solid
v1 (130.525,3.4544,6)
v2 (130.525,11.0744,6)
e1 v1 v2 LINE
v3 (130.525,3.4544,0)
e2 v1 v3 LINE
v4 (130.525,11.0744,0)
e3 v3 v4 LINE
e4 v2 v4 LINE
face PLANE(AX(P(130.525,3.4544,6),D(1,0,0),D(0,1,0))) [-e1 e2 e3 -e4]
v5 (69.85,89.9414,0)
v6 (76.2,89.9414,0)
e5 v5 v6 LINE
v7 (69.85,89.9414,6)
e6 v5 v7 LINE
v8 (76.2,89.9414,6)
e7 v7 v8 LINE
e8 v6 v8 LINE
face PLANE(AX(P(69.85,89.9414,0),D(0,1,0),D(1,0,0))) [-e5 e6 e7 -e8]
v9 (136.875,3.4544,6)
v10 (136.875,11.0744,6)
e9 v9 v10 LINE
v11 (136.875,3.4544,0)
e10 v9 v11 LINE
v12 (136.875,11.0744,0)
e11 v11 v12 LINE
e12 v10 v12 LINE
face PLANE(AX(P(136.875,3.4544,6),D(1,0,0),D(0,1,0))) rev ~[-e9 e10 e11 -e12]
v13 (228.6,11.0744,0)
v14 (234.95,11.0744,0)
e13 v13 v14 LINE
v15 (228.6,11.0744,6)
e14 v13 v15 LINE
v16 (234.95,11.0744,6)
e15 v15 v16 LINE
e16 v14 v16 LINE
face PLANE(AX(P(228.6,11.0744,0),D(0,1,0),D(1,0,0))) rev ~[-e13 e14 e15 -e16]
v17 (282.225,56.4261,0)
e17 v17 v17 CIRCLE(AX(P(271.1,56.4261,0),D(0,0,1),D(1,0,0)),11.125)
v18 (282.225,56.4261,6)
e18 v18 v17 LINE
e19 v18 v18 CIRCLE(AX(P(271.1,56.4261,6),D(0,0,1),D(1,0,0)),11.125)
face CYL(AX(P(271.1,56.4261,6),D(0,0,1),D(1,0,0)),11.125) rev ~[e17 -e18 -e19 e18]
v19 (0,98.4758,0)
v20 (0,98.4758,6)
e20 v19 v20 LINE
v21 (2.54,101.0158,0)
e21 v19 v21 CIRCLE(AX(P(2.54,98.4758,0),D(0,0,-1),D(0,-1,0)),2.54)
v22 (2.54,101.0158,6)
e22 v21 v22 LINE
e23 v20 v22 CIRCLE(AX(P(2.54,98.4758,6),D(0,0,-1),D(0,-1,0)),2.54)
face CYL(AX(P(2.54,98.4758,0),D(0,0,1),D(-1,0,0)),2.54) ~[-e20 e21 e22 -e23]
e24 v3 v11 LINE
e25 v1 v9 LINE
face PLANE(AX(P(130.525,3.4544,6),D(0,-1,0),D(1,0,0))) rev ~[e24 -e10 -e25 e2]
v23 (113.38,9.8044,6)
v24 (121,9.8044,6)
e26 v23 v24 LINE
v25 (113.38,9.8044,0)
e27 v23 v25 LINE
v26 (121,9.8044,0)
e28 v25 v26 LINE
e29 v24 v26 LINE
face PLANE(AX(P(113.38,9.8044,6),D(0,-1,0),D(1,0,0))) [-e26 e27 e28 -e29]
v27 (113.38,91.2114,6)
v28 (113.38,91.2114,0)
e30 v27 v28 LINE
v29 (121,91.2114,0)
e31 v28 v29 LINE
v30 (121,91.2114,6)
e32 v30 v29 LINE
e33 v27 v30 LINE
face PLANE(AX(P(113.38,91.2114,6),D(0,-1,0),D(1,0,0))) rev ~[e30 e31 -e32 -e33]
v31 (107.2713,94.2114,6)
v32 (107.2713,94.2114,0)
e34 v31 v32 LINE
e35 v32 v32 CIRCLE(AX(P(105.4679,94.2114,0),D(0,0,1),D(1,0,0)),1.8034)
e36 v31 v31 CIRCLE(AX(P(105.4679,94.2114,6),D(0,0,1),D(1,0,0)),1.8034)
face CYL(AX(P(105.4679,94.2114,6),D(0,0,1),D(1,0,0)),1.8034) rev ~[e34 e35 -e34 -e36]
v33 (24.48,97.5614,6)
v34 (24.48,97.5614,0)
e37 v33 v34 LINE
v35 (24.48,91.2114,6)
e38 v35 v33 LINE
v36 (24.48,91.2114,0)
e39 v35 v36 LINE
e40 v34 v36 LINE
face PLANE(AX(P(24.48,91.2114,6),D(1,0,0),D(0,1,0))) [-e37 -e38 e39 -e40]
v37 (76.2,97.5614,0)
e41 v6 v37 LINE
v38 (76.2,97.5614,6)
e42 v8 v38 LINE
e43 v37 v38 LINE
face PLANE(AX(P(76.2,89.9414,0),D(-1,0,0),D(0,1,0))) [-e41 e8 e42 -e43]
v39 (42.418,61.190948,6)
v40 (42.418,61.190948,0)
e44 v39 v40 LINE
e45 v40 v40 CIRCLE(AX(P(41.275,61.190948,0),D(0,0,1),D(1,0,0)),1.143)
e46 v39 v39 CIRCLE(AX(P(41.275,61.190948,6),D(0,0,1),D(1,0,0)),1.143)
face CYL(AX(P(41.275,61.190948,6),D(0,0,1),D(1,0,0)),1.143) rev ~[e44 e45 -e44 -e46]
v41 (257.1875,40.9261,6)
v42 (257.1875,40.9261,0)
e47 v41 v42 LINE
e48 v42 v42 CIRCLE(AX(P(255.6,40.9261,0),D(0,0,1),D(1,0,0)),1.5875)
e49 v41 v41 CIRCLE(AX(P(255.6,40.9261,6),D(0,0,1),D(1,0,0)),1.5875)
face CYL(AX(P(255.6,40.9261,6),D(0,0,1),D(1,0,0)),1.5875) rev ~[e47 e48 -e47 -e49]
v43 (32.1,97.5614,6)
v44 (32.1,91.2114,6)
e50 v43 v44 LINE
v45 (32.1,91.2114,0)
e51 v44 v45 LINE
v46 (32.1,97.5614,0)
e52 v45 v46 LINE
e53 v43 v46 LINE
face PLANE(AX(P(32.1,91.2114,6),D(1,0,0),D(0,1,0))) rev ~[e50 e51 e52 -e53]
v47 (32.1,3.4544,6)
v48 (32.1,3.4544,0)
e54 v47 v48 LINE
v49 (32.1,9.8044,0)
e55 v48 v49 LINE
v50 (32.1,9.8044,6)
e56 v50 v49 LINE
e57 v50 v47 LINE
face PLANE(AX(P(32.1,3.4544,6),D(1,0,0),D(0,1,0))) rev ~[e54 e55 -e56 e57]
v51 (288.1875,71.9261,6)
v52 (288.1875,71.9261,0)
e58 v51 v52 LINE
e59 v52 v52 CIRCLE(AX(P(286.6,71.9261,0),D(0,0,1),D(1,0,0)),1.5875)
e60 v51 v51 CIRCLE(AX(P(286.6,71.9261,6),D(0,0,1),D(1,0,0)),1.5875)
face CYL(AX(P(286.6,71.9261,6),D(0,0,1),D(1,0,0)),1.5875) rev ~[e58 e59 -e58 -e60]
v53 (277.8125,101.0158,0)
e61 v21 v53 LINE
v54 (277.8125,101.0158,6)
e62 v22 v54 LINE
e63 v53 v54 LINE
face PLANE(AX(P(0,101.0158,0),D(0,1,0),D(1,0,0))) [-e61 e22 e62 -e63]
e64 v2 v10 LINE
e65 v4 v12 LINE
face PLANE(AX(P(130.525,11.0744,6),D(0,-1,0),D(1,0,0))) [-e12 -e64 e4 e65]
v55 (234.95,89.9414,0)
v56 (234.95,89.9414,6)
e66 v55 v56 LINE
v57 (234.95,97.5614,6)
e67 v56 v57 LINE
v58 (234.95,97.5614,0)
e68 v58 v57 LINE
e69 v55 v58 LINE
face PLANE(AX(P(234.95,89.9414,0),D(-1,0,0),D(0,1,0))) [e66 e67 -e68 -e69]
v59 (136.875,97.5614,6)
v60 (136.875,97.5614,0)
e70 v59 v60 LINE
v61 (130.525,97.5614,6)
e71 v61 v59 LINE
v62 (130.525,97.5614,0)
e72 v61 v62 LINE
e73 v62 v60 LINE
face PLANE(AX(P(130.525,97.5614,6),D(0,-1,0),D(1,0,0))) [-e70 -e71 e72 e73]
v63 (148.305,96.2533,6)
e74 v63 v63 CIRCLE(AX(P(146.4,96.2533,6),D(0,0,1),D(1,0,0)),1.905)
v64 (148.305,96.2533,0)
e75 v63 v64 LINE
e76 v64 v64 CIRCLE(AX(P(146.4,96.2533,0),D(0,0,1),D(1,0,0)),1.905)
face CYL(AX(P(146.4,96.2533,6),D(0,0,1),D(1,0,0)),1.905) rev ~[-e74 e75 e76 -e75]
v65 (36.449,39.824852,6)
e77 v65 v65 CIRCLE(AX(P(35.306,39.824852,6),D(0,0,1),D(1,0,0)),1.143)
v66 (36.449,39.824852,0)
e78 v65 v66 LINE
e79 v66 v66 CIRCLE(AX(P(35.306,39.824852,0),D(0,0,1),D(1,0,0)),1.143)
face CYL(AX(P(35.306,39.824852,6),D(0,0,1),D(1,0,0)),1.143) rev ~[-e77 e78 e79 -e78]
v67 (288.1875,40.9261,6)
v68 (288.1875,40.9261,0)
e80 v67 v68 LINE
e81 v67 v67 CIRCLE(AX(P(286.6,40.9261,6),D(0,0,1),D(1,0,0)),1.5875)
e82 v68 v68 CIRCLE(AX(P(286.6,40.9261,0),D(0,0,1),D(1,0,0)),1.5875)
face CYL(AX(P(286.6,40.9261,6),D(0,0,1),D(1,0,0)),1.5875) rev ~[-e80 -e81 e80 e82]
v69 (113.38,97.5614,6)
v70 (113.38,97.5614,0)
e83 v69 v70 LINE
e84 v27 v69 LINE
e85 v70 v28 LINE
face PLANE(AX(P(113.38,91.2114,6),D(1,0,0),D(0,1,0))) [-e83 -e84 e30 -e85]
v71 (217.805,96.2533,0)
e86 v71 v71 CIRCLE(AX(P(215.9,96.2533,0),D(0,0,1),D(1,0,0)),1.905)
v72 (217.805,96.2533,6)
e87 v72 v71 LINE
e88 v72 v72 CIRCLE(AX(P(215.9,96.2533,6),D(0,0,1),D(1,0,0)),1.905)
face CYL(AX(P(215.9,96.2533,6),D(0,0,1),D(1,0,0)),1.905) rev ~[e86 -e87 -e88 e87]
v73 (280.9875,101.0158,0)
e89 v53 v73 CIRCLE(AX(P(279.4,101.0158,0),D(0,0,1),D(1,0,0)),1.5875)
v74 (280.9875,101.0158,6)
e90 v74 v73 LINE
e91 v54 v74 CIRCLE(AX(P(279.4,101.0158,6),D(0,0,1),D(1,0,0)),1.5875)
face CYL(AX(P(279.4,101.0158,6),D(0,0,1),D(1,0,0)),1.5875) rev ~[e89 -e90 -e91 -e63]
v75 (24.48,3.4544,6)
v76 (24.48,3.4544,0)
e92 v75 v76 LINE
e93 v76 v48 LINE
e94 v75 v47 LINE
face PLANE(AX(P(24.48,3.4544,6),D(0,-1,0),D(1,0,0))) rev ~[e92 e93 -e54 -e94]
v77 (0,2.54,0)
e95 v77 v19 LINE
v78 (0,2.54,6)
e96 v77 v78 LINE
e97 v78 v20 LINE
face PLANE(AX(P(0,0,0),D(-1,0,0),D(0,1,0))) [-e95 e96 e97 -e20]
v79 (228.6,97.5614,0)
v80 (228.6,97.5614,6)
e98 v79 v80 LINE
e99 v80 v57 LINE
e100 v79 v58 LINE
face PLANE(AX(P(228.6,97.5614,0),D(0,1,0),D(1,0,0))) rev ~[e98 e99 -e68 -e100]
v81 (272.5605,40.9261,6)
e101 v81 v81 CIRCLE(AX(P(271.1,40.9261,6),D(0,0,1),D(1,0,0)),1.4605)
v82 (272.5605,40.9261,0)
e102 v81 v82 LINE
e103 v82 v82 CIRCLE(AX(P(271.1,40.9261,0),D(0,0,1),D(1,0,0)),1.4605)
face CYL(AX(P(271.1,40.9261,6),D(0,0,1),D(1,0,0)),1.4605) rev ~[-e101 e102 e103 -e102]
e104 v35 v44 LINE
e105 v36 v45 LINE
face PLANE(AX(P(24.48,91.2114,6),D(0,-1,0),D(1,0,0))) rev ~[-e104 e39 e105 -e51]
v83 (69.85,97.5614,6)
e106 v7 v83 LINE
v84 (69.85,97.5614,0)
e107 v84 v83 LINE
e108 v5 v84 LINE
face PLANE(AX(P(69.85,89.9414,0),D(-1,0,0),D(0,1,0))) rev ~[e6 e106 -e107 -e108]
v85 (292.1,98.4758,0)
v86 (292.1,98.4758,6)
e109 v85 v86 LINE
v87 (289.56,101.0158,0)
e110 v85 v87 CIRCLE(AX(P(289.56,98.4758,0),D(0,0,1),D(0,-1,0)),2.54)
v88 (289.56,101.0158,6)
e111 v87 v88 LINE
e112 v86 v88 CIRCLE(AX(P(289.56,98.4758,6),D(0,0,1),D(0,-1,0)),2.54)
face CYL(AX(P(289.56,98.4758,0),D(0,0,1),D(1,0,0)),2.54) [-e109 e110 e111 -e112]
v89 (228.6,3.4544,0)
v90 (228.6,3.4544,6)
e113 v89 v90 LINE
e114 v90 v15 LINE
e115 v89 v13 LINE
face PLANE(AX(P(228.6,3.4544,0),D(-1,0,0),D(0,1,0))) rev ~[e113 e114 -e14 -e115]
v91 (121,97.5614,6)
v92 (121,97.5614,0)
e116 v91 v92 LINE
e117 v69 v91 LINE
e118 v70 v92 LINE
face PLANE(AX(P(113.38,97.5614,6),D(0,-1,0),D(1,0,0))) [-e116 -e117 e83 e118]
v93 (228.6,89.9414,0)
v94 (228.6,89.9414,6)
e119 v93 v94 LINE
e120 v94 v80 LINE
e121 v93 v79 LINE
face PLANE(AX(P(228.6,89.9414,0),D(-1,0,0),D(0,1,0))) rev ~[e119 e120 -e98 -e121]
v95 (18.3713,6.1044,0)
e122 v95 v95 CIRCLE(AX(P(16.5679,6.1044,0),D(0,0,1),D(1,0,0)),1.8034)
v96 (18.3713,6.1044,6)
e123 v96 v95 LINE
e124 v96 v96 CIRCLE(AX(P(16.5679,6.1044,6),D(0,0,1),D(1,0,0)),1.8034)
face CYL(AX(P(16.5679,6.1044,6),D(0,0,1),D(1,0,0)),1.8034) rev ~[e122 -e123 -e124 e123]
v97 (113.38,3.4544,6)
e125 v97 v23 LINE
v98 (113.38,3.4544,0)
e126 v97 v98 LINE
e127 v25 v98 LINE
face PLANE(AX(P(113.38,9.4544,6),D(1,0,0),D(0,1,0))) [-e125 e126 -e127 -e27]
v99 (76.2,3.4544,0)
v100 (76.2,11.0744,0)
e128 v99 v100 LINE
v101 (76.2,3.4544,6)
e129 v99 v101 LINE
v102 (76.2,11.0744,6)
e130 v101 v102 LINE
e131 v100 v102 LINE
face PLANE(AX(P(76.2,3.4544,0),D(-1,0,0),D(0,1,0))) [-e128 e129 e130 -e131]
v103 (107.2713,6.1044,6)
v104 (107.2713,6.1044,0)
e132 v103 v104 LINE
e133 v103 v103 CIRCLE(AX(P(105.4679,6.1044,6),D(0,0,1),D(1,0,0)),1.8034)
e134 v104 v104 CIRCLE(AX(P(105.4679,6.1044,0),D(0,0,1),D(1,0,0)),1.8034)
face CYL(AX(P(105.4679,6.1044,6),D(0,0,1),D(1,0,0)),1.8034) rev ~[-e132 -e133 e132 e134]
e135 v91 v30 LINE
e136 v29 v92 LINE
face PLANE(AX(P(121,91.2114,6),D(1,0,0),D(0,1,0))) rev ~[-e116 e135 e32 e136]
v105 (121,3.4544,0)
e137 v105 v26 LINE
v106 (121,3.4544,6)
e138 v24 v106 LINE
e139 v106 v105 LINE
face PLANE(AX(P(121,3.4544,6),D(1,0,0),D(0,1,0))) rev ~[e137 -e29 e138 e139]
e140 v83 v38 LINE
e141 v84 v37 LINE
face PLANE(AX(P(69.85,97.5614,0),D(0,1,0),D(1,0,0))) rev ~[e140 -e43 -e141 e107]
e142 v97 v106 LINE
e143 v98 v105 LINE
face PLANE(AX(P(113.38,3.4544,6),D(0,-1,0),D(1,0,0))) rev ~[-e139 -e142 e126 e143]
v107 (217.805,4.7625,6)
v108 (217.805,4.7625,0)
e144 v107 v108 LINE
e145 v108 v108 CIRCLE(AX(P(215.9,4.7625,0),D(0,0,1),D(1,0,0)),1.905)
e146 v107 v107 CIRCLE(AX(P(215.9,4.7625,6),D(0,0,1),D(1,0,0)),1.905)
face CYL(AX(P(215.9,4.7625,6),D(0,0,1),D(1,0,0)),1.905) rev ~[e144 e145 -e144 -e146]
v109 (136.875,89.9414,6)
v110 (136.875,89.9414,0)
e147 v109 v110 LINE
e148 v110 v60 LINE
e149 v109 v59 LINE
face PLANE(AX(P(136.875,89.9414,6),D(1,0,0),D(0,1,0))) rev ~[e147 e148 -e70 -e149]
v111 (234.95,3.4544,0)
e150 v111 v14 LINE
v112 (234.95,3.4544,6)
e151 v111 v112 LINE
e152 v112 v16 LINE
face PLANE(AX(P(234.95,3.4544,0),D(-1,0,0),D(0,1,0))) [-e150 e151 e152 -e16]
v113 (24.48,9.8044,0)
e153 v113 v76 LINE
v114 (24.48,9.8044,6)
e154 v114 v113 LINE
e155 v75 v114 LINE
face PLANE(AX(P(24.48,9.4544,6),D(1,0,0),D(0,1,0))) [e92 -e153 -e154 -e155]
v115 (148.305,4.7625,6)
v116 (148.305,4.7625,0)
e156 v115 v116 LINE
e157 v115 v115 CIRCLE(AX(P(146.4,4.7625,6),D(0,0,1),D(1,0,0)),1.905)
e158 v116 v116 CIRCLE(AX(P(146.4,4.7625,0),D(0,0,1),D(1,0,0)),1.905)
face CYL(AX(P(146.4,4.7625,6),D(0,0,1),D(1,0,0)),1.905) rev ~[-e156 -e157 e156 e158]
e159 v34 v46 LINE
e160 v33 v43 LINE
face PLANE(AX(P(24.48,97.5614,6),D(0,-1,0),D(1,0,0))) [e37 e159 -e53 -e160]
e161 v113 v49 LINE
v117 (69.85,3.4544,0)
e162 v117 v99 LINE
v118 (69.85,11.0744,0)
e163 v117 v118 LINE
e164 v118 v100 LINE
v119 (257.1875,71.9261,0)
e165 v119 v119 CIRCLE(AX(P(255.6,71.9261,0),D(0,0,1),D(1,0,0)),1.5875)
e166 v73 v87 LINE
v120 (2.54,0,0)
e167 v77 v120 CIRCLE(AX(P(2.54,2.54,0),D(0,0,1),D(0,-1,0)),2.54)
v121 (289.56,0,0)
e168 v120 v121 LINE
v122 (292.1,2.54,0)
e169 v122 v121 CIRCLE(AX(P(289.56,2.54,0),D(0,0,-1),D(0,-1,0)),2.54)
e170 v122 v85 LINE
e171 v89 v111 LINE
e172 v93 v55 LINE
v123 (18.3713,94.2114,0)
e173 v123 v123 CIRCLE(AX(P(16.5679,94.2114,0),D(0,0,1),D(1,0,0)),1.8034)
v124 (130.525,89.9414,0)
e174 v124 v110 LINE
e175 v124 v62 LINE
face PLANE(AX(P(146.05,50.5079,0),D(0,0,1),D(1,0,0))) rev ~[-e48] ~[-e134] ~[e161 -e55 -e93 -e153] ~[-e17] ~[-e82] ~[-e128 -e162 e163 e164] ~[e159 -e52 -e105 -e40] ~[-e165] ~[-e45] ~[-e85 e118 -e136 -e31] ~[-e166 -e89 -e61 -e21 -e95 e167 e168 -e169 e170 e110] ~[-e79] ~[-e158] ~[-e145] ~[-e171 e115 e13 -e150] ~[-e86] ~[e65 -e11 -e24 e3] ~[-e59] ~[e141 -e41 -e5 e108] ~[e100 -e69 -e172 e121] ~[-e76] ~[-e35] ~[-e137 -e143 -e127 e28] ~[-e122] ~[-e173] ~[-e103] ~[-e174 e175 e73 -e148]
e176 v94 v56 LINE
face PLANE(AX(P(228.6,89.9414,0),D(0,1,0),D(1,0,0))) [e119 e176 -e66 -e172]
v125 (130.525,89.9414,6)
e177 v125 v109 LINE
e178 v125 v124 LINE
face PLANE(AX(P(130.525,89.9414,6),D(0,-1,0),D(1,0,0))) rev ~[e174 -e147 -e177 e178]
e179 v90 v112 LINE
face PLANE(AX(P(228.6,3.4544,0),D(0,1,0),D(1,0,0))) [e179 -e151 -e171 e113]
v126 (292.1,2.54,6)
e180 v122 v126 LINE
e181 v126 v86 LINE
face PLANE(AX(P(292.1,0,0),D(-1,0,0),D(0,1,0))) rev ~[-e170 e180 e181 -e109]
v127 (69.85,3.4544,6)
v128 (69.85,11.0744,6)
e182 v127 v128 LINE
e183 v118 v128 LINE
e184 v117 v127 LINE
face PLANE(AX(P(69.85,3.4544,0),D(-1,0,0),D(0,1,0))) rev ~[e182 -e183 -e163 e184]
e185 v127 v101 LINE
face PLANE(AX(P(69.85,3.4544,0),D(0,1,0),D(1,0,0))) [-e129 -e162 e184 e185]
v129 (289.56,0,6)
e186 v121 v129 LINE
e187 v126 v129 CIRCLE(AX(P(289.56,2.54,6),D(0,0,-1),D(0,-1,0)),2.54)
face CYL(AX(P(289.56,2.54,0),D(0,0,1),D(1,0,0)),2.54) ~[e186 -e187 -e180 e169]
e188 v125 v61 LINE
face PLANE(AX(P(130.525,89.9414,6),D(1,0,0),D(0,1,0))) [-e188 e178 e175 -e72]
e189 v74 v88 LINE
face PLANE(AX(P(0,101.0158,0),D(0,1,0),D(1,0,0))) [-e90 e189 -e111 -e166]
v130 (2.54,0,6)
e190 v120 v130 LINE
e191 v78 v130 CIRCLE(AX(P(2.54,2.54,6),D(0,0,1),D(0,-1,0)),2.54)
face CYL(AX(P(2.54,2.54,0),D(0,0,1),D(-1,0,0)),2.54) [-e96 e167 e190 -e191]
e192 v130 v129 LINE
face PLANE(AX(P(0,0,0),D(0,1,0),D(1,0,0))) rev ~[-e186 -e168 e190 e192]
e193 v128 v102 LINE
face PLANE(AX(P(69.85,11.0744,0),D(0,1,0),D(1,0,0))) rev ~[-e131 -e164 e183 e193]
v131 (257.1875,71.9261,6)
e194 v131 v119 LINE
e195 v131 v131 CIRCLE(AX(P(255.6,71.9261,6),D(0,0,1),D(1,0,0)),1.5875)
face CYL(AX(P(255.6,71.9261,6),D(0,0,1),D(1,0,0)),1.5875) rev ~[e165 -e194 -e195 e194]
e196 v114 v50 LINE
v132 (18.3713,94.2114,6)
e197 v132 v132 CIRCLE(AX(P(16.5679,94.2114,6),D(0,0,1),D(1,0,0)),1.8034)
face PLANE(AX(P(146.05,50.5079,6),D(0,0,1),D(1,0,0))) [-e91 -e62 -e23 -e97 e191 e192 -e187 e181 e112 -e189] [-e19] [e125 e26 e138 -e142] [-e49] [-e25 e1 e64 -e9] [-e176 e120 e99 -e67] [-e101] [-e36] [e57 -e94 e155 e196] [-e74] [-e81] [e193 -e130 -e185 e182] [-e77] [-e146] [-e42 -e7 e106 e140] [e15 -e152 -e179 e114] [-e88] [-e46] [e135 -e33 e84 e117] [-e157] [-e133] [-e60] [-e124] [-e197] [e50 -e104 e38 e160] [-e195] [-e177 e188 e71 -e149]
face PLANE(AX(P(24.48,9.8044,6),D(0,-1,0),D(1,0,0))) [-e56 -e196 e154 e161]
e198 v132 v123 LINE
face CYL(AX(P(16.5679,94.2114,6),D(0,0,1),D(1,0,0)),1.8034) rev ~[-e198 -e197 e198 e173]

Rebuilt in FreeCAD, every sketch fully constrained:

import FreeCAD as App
import Part
import Sketcher
from FreeCAD import Vector
Q = App.Units.Quantity


def edges_at(feature, points):
    """Names of the edges that pass closest to the given points."""
    edges = feature.Shape.Edges
    near = lambda p: min(range(len(edges)), key=lambda i: edges[i].distToShape(Part.Vertex(*p))[0])
    return sorted({f"Edge{near(p) + 1}" for p in points})

doc = App.newDocument("Part")
params = doc.addObject("Spreadsheet::Sheet", "Params")
for row, (alias, value) in enumerate([
    ("sketch1_width", "11.5 in"),
    ("sketch1_height", "0.3 in"),
    ("sketch1_width2", "0.25 in"),
    ("sketch1_height2", "3.977 in"),
    ("pad1_length", "6 mm"),
    ("sketch2_diameter", "0.125 in"),
    ("sketch2_diameter2", "0.115 in"),
    ("sketch3_width", "0.3 in"),
    ("sketch4_width", "0.3 in"),
    ("pocket3_length", "6 mm"),
    ("fillet_radius", "0.1 in"),
    ("sketch5_diameter", "0.09 in"),
    ("sketch6_diameter", "0.15 in"),
    ("sketch6_height", "0.3 in"),
    ("sketch6_width", "0.25 in"),
    ("sketch7_diameter", "0.142 in"),
    ("sketch8_diameter", "0.125 in"),
], start=1):
    params.set(f"A{row}", alias)
    params.set(f"B{row}", "=" + value)
    params.setAlias(f"B{row}", alias)

body = doc.addObject("PartDesign::Body", "Body")

sketch1 = doc.addObject("Sketcher::SketchObject", "Sketch")
body.addObject(sketch1)
sketch1.AttachmentSupport = (doc.XY_Plane, [""])
sketch1.MapMode = "FlatFace"
sketch1.addGeometry([
    Part.LineSegment(Vector(0, 101, 0), Vector(0, 0, 0)),
    Part.LineSegment(Vector(0, 0, 0), Vector(292, 0, 0)),
    Part.LineSegment(Vector(292, 0, 0), Vector(292, 101, 0)),
    Part.LineSegment(Vector(292, 101, 0), Vector(0, 101, 0)),
    Part.LineSegment(Vector(76, 3, 0), Vector(70, 3, 0)),
    Part.LineSegment(Vector(70, 3, 0), Vector(70, 11, 0)),
    Part.LineSegment(Vector(70, 11, 0), Vector(76, 11, 0)),
    Part.LineSegment(Vector(76, 11, 0), Vector(76, 3, 0)),
    Part.LineSegment(Vector(235, 3, 0), Vector(229, 3, 0)),
    Part.LineSegment(Vector(229, 3, 0), Vector(229, 11, 0)),
    Part.LineSegment(Vector(229, 11, 0), Vector(235, 11, 0)),
    Part.LineSegment(Vector(235, 11, 0), Vector(235, 3, 0)),
    Part.LineSegment(Vector(76, 90, 0), Vector(70, 90, 0)),
    Part.LineSegment(Vector(70, 90, 0), Vector(70, 98, 0)),
    Part.LineSegment(Vector(70, 98, 0), Vector(76, 98, 0)),
    Part.LineSegment(Vector(76, 98, 0), Vector(76, 90, 0)),
    Part.LineSegment(Vector(235, 90, 0), Vector(229, 90, 0)),
    Part.LineSegment(Vector(229, 90, 0), Vector(229, 98, 0)),
    Part.LineSegment(Vector(229, 98, 0), Vector(235, 98, 0)),
    Part.LineSegment(Vector(235, 98, 0), Vector(235, 90, 0)),
], False)
sketch1.addConstraint([
    Sketcher.Constraint("Coincident", 0, 2, 1, 1),
    Sketcher.Constraint("Coincident", 1, 2, 2, 1),
    Sketcher.Constraint("Coincident", 2, 2, 3, 1),
    Sketcher.Constraint("Coincident", 3, 2, 0, 1),
    Sketcher.Constraint("Coincident", 4, 2, 5, 1),
    Sketcher.Constraint("Coincident", 5, 2, 6, 1),
    Sketcher.Constraint("Coincident", 6, 2, 7, 1),
    Sketcher.Constraint("Coincident", 7, 2, 4, 1),
    Sketcher.Constraint("Coincident", 8, 2, 9, 1),
    Sketcher.Constraint("Coincident", 9, 2, 10, 1),
    Sketcher.Constraint("Coincident", 10, 2, 11, 1),
    Sketcher.Constraint("Coincident", 11, 2, 8, 1),
    Sketcher.Constraint("Coincident", 12, 2, 13, 1),
    Sketcher.Constraint("Coincident", 13, 2, 14, 1),
    Sketcher.Constraint("Coincident", 14, 2, 15, 1),
    Sketcher.Constraint("Coincident", 15, 2, 12, 1),
    Sketcher.Constraint("Coincident", 16, 2, 17, 1),
    Sketcher.Constraint("Coincident", 17, 2, 18, 1),
    Sketcher.Constraint("Coincident", 18, 2, 19, 1),
    Sketcher.Constraint("Coincident", 19, 2, 16, 1),
    Sketcher.Constraint("Vertical", 0),
    Sketcher.Constraint("Horizontal", 1),
    Sketcher.Constraint("Vertical", 2),
    Sketcher.Constraint("Horizontal", 3),
    Sketcher.Constraint("Horizontal", 4),
    Sketcher.Constraint("Vertical", 5),
    Sketcher.Constraint("Horizontal", 6),
    Sketcher.Constraint("Vertical", 7),
    Sketcher.Constraint("Horizontal", 8),
    Sketcher.Constraint("Vertical", 9),
    Sketcher.Constraint("Horizontal", 10),
    Sketcher.Constraint("Vertical", 11),
    Sketcher.Constraint("Horizontal", 12),
    Sketcher.Constraint("Vertical", 13),
    Sketcher.Constraint("Horizontal", 14),
    Sketcher.Constraint("Vertical", 15),
    Sketcher.Constraint("Horizontal", 16),
    Sketcher.Constraint("Vertical", 17),
    Sketcher.Constraint("Horizontal", 18),
    Sketcher.Constraint("Vertical", 19),
    Sketcher.Constraint("Coincident", 0, 2, -1, 1),
    Sketcher.Constraint("Horizontal", 7, 2, 8, 2),
    Sketcher.Constraint("Horizontal", 6, 2, 9, 2),
    Sketcher.Constraint("Horizontal", 15, 2, 16, 2),
    Sketcher.Constraint("Horizontal", 14, 2, 17, 2),
    Sketcher.Constraint("Vertical", 5, 2, 12, 2),
    Sketcher.Constraint("Vertical", 7, 2, 14, 2),
    Sketcher.Constraint("Vertical", 9, 2, 16, 2),
    Sketcher.Constraint("Vertical", 11, 2, 18, 2),
    Sketcher.Constraint("Equal", 6, 8),
    Sketcher.Constraint("Equal", 11, 13),
    Sketcher.Constraint("DistanceX", 1, 1, 1, 2, Q("11.5 in")),
    Sketcher.Constraint("DistanceY", 5, 1, 5, 2, Q("0.3 in")),
    Sketcher.Constraint("DistanceX", -1, 1, 6, 2, Q("3 in")),
    Sketcher.Constraint("DistanceX", -1, 1, 8, 2, Q("9 in")),
    Sketcher.Constraint("DistanceX", 4, 2, 4, 1, Q("0.25 in")),
    Sketcher.Constraint("DistanceY", 0, 2, 0, 1, Q("3.977 in")),
    Sketcher.Constraint("DistanceY", -1, 1, 4, 2, Q("0.136 in")),
    Sketcher.Constraint("DistanceY", -1, 1, 12, 2, Q("3.541 in")),
])
sketch1.setExpression("Constraints[51]", "Params.sketch1_width")
sketch1.setExpression("Constraints[52]", "Params.sketch1_height")
sketch1.setExpression("Constraints[55]", "Params.sketch1_width2")
sketch1.setExpression("Constraints[56]", "Params.sketch1_height2")
pad1 = doc.addObject("PartDesign::Pad", "Pad")
body.addObject(pad1)
pad1.Profile = sketch1
pad1.setExpression("Length", "Params.pad1_length")

sketch2 = doc.addObject("Sketcher::SketchObject", "Sketch001")
body.addObject(sketch2)
sketch2.AttachmentSupport = (doc.XY_Plane, [""])
sketch2.MapMode = "FlatFace"
sketch2.AttachmentOffset = App.Placement(Vector(0, 0, 6), App.Rotation())
sketch2.addGeometry([
    Part.Circle(Vector(271.1, 56.4, 0), Vector(0, 0, 1), 11.1),
    Part.Circle(Vector(255.6, 71.9, 0), Vector(0, 0, 1), 1.6),
    Part.Circle(Vector(255.6, 40.9, 0), Vector(0, 0, 1), 1.6),
    Part.Circle(Vector(286.6, 40.9, 0), Vector(0, 0, 1), 1.6),
    Part.Circle(Vector(286.6, 71.9, 0), Vector(0, 0, 1), 1.6),
    Part.Circle(Vector(271.1, 40.9, 0), Vector(0, 0, 1), 1.5),
], False)
sketch2.addConstraint([
    Sketcher.Constraint("Equal", 1, 2),
    Sketcher.Constraint("Equal", 2, 3),
    Sketcher.Constraint("Equal", 3, 4),
    Sketcher.Constraint("Horizontal", 2, 3, 3, 3),
    Sketcher.Constraint("Horizontal", 1, 3, 4, 3),
    Sketcher.Constraint("Horizontal", 3, 3, 5, 3),
    Sketcher.Constraint("Vertical", 1, 3, 2, 3),
    Sketcher.Constraint("Vertical", 3, 3, 4, 3),
    Sketcher.Constraint("Vertical", 0, 3, 5, 3),
    Sketcher.Constraint("Diameter", 1, Q("0.125 in")),
    Sketcher.Constraint("Diameter", 5, Q("0.115 in")),
    Sketcher.Constraint("Diameter", 0, Q("22.25 mm")),
    Sketcher.Constraint("DistanceY", -1, 1, 0, 3, Q("2.2215 in")),
    Sketcher.Constraint("DistanceX", -1, 1, 0, 3, Q("271.1 mm")),
    Sketcher.Constraint("DistanceX", -1, 1, 1, 3, Q("255.6 mm")),
    Sketcher.Constraint("DistanceY", -1, 1, 1, 3, Q("71.9261 mm")),
    Sketcher.Constraint("DistanceY", -1, 1, 2, 3, Q("40.9261 mm")),
    Sketcher.Constraint("DistanceX", -1, 1, 3, 3, Q("286.6 mm")),
])
sketch2.setExpression("Constraints[9]", "Params.sketch2_diameter")
sketch2.setExpression("Constraints[10]", "Params.sketch2_diameter2")
pocket1 = doc.addObject("PartDesign::Pocket", "Pocket")
body.addObject(pocket1)
pocket1.Profile = sketch2
pocket1.Type = "ThroughAll"

sketch3 = doc.addObject("Sketcher::SketchObject", "Sketch002")
body.addObject(sketch3)
sketch3.AttachmentSupport = (doc.XY_Plane, [""])
sketch3.MapMode = "FlatFace"
sketch3.AttachmentOffset = App.Placement(Vector(0, 0, 6), App.Rotation())
sketch3.addGeometry([
    Part.LineSegment(Vector(113, 98, 0), Vector(113, 92, 0)),
    Part.LineSegment(Vector(113, 92, 0), Vector(121, 92, 0)),
    Part.LineSegment(Vector(121, 92, 0), Vector(121, 98, 0)),
    Part.LineSegment(Vector(121, 98, 0), Vector(113, 98, 0)),
    Part.LineSegment(Vector(113, 9, 0), Vector(113, 3, 0)),
    Part.LineSegment(Vector(113, 3, 0), Vector(121, 3, 0)),
    Part.LineSegment(Vector(121, 3, 0), Vector(121, 9, 0)),
    Part.LineSegment(Vector(121, 9, 0), Vector(113, 9, 0)),
    Part.LineSegment(Vector(24, 9, 0), Vector(24, 3, 0)),
    Part.LineSegment(Vector(24, 3, 0), Vector(32, 3, 0)),
    Part.LineSegment(Vector(32, 3, 0), Vector(32, 9, 0)),
    Part.LineSegment(Vector(32, 9, 0), Vector(24, 9, 0)),
    Part.LineSegment(Vector(24, 98, 0), Vector(24, 92, 0)),
    Part.LineSegment(Vector(24, 92, 0), Vector(32, 92, 0)),
    Part.LineSegment(Vector(32, 92, 0), Vector(32, 98, 0)),
    Part.LineSegment(Vector(32, 98, 0), Vector(24, 98, 0)),
], False)
sketch3.addConstraint([
    Sketcher.Constraint("Coincident", 0, 2, 1, 1),
    Sketcher.Constraint("Coincident", 1, 2, 2, 1),
    Sketcher.Constraint("Coincident", 2, 2, 3, 1),
    Sketcher.Constraint("Coincident", 3, 2, 0, 1),
    Sketcher.Constraint("Coincident", 4, 2, 5, 1),
    Sketcher.Constraint("Coincident", 5, 2, 6, 1),
    Sketcher.Constraint("Coincident", 6, 2, 7, 1),
    Sketcher.Constraint("Coincident", 7, 2, 4, 1),
    Sketcher.Constraint("Coincident", 8, 2, 9, 1),
    Sketcher.Constraint("Coincident", 9, 2, 10, 1),
    Sketcher.Constraint("Coincident", 10, 2, 11, 1),
    Sketcher.Constraint("Coincident", 11, 2, 8, 1),
    Sketcher.Constraint("Coincident", 12, 2, 13, 1),
    Sketcher.Constraint("Coincident", 13, 2, 14, 1),
    Sketcher.Constraint("Coincident", 14, 2, 15, 1),
    Sketcher.Constraint("Coincident", 15, 2, 12, 1),
    Sketcher.Constraint("Vertical", 0),
    Sketcher.Constraint("Horizontal", 1),
    Sketcher.Constraint("Vertical", 2),
    Sketcher.Constraint("Horizontal", 3),
    Sketcher.Constraint("Vertical", 4),
    Sketcher.Constraint("Horizontal", 5),
    Sketcher.Constraint("Vertical", 6),
    Sketcher.Constraint("Horizontal", 7),
    Sketcher.Constraint("Vertical", 8),
    Sketcher.Constraint("Horizontal", 9),
    Sketcher.Constraint("Vertical", 10),
    Sketcher.Constraint("Horizontal", 11),
    Sketcher.Constraint("Vertical", 12),
    Sketcher.Constraint("Horizontal", 13),
    Sketcher.Constraint("Vertical", 14),
    Sketcher.Constraint("Horizontal", 15),
    Sketcher.Constraint("Horizontal", 5, 2, 8, 2),
    Sketcher.Constraint("Horizontal", 7, 2, 10, 2),
    Sketcher.Constraint("Horizontal", 1, 2, 12, 2),
    Sketcher.Constraint("Horizontal", 3, 2, 14, 2),
    Sketcher.Constraint("Vertical", 3, 2, 4, 2),
    Sketcher.Constraint("Vertical", 2, 2, 5, 2),
    Sketcher.Constraint("Vertical", 11, 2, 12, 2),
    Sketcher.Constraint("Vertical", 10, 2, 13, 2),
    Sketcher.Constraint("Equal", 7, 9),
    Sketcher.Constraint("Equal", 2, 4),
    Sketcher.Constraint("DistanceX", 1, 1, 1, 2, Q("0.3 in")),
    Sketcher.Constraint("DistanceX", 8, 2, 4, 2, Q("3.5 in")),
    Sketcher.Constraint("DistanceY", -1, 1, 2, 2, Q("3.841 in")),
    Sketcher.Constraint("DistanceY", -1, 1, 4, 2, Q("0.136 in")),
    Sketcher.Constraint("DistanceY", 0, 2, 0, 1, Q("6 mm")),
    Sketcher.Constraint("DistanceX", -1, 1, 0, 2, Q("113.38 mm")),
])
sketch3.setExpression("Constraints[42]", "Params.sketch3_width")
pocket2 = doc.addObject("PartDesign::Pocket", "Pocket001")
body.addObject(pocket2)
pocket2.Profile = sketch3
pocket2.Type = "ThroughAll"

sketch4 = doc.addObject("Sketcher::SketchObject", "Sketch003")
body.addObject(sketch4)
sketch4.AttachmentSupport = (doc.XY_Plane, [""])
sketch4.MapMode = "FlatFace"
sketch4.AttachmentOffset = App.Placement(Vector(0, 0, 6), App.Rotation())
sketch4.addGeometry([
    Part.LineSegment(Vector(24.48, 91.56, 0), Vector(24.48, 91.21, 0)),
    Part.LineSegment(Vector(24.48, 91.21, 0), Vector(32.1, 91.21, 0)),
    Part.LineSegment(Vector(32.1, 91.21, 0), Vector(32.1, 91.56, 0)),
    Part.LineSegment(Vector(32.1, 91.56, 0), Vector(24.48, 91.56, 0)),
    Part.LineSegment(Vector(24.48, 9.8, 0), Vector(24.48, 9.45, 0)),
    Part.LineSegment(Vector(24.48, 9.45, 0), Vector(32.1, 9.45, 0)),
    Part.LineSegment(Vector(32.1, 9.45, 0), Vector(32.1, 9.8, 0)),
    Part.LineSegment(Vector(32.1, 9.8, 0), Vector(24.48, 9.8, 0)),
    Part.LineSegment(Vector(113.38, 9.8, 0), Vector(113.38, 9.45, 0)),
    Part.LineSegment(Vector(113.38, 9.45, 0), Vector(121, 9.45, 0)),
    Part.LineSegment(Vector(121, 9.45, 0), Vector(121, 9.8, 0)),
    Part.LineSegment(Vector(121, 9.8, 0), Vector(113.38, 9.8, 0)),
    Part.LineSegment(Vector(113.38, 91.56, 0), Vector(113.38, 91.21, 0)),
    Part.LineSegment(Vector(113.38, 91.21, 0), Vector(121, 91.21, 0)),
    Part.LineSegment(Vector(121, 91.21, 0), Vector(121, 91.56, 0)),
    Part.LineSegment(Vector(121, 91.56, 0), Vector(113.38, 91.56, 0)),
], False)
sketch4.addConstraint([
    Sketcher.Constraint("Coincident", 0, 2, 1, 1),
    Sketcher.Constraint("Coincident", 1, 2, 2, 1),
    Sketcher.Constraint("Coincident", 2, 2, 3, 1),
    Sketcher.Constraint("Coincident", 3, 2, 0, 1),
    Sketcher.Constraint("Coincident", 4, 2, 5, 1),
    Sketcher.Constraint("Coincident", 5, 2, 6, 1),
    Sketcher.Constraint("Coincident", 6, 2, 7, 1),
    Sketcher.Constraint("Coincident", 7, 2, 4, 1),
    Sketcher.Constraint("Coincident", 8, 2, 9, 1),
    Sketcher.Constraint("Coincident", 9, 2, 10, 1),
    Sketcher.Constraint("Coincident", 10, 2, 11, 1),
    Sketcher.Constraint("Coincident", 11, 2, 8, 1),
    Sketcher.Constraint("Coincident", 12, 2, 13, 1),
    Sketcher.Constraint("Coincident", 13, 2, 14, 1),
    Sketcher.Constraint("Coincident", 14, 2, 15, 1),
    Sketcher.Constraint("Coincident", 15, 2, 12, 1),
    Sketcher.Constraint("Vertical", 0),
    Sketcher.Constraint("Horizontal", 1),
    Sketcher.Constraint("Vertical", 2),
    Sketcher.Constraint("Horizontal", 3),
    Sketcher.Constraint("Vertical", 4),
    Sketcher.Constraint("Horizontal", 5),
    Sketcher.Constraint("Vertical", 6),
    Sketcher.Constraint("Horizontal", 7),
    Sketcher.Constraint("Vertical", 8),
    Sketcher.Constraint("Horizontal", 9),
    Sketcher.Constraint("Vertical", 10),
    Sketcher.Constraint("Horizontal", 11),
    Sketcher.Constraint("Vertical", 12),
    Sketcher.Constraint("Horizontal", 13),
    Sketcher.Constraint("Vertical", 14),
    Sketcher.Constraint("Horizontal", 15),
    Sketcher.Constraint("Horizontal", 5, 2, 8, 2),
    Sketcher.Constraint("Horizontal", 7, 2, 10, 2),
    Sketcher.Constraint("Horizontal", 1, 2, 12, 2),
    Sketcher.Constraint("Horizontal", 3, 2, 14, 2),
    Sketcher.Constraint("Vertical", 3, 2, 4, 2),
    Sketcher.Constraint("Vertical", 2, 2, 5, 2),
    Sketcher.Constraint("Vertical", 11, 2, 12, 2),
    Sketcher.Constraint("Vertical", 10, 2, 13, 2),
    Sketcher.Constraint("Equal", 7, 9),
    Sketcher.Constraint("Equal", 2, 4),
    Sketcher.Constraint("DistanceX", 1, 1, 1, 2, Q("0.3 in")),
    Sketcher.Constraint("DistanceX", 5, 2, 8, 2, Q("3.2 in")),
    Sketcher.Constraint("DistanceY", -1, 1, 0, 2, Q("3.591 in")),
    Sketcher.Constraint("DistanceY", -1, 1, 6, 2, Q("0.386 in")),
    Sketcher.Constraint("DistanceY", 0, 2, 0, 1, Q("0.35 mm")),
    Sketcher.Constraint("DistanceX", -1, 1, 0, 2, Q("24.48 mm")),
])
sketch4.setExpression("Constraints[42]", "Params.sketch4_width")
pocket3 = doc.addObject("PartDesign::Pocket", "Pocket002")
body.addObject(pocket3)
pocket3.Profile = sketch4
pocket3.setExpression("Length", "Params.pocket3_length")
doc.recompute()

fillet = doc.addObject("PartDesign::Fillet", "Fillet")
body.addObject(fillet)
fillet.Base = (pocket3, edges_at(pocket3, [
    (0, 101.016, 3),
    (292.1, 101.016, 3),
    (292.1, 0, 3),
    (0, 0, 3),
]))
fillet.setExpression("Radius", "Params.fillet_radius")

sketch5 = doc.addObject("Sketcher::SketchObject", "Sketch004")
body.addObject(sketch5)
sketch5.AttachmentSupport = (doc.XY_Plane, [""])
sketch5.MapMode = "FlatFace"
sketch5.AttachmentOffset = App.Placement(Vector(0, 0, 6), App.Rotation())
sketch5.addGeometry([
    Part.Circle(Vector(35.3, 39.8, 0), Vector(0, 0, 1), 1.1),
    Part.Circle(Vector(41.3, 61.2, 0), Vector(0, 0, 1), 1.1),
], False)
sketch5.addConstraint([
    Sketcher.Constraint("Equal", 0, 1),
    Sketcher.Constraint("Diameter", 0, Q("0.09 in")),
    Sketcher.Constraint("DistanceX", -1, 1, 0, 3, Q("1.39 in")),
    Sketcher.Constraint("DistanceX", -1, 1, 1, 3, Q("1.625 in")),
    Sketcher.Constraint("DistanceY", -1, 1, 0, 3, Q("39.824852 mm")),
    Sketcher.Constraint("DistanceY", -1, 1, 1, 3, Q("61.190948 mm")),
])
sketch5.setExpression("Constraints[1]", "Params.sketch5_diameter")
pocket4 = doc.addObject("PartDesign::Pocket", "Pocket003")
body.addObject(pocket4)
pocket4.Profile = sketch5
pocket4.Type = "ThroughAll"

sketch6 = doc.addObject("Sketcher::SketchObject", "Sketch005")
body.addObject(sketch6)
sketch6.AttachmentSupport = (doc.XY_Plane, [""])
sketch6.MapMode = "FlatFace"
sketch6.AttachmentOffset = App.Placement(Vector(0, 0, 6), App.Rotation())
sketch6.addGeometry([
    Part.Circle(Vector(146.4, 96.3, 0), Vector(0, 0, 1), 1.9),
    Part.Circle(Vector(215.9, 96.3, 0), Vector(0, 0, 1), 1.9),
    Part.Circle(Vector(215.9, 4.8, 0), Vector(0, 0, 1), 1.9),
    Part.Circle(Vector(146.4, 4.8, 0), Vector(0, 0, 1), 1.9),
    Part.LineSegment(Vector(130.5, 97.6, 0), Vector(130.5, 89.9, 0)),
    Part.LineSegment(Vector(130.5, 89.9, 0), Vector(136.9, 89.9, 0)),
    Part.LineSegment(Vector(136.9, 89.9, 0), Vector(136.9, 97.6, 0)),
    Part.LineSegment(Vector(136.9, 97.6, 0), Vector(130.5, 97.6, 0)),
    Part.LineSegment(Vector(130.5, 11.1, 0), Vector(130.5, 3.5, 0)),
    Part.LineSegment(Vector(130.5, 3.5, 0), Vector(136.9, 3.5, 0)),
    Part.LineSegment(Vector(136.9, 3.5, 0), Vector(136.9, 11.1, 0)),
    Part.LineSegment(Vector(136.9, 11.1, 0), Vector(130.5, 11.1, 0)),
], False)
sketch6.addConstraint([
    Sketcher.Constraint("Coincident", 4, 2, 5, 1),
    Sketcher.Constraint("Coincident", 5, 2, 6, 1),
    Sketcher.Constraint("Coincident", 6, 2, 7, 1),
    Sketcher.Constraint("Coincident", 7, 2, 4, 1),
    Sketcher.Constraint("Coincident", 8, 2, 9, 1),
    Sketcher.Constraint("Coincident", 9, 2, 10, 1),
    Sketcher.Constraint("Coincident", 10, 2, 11, 1),
    Sketcher.Constraint("Coincident", 11, 2, 8, 1),
    Sketcher.Constraint("Vertical", 4),
    Sketcher.Constraint("Horizontal", 5),
    Sketcher.Constraint("Vertical", 6),
    Sketcher.Constraint("Horizontal", 7),
    Sketcher.Constraint("Vertical", 8),
    Sketcher.Constraint("Horizontal", 9),
    Sketcher.Constraint("Vertical", 10),
    Sketcher.Constraint("Horizontal", 11),
    Sketcher.Constraint("Equal", 0, 1),
    Sketcher.Constraint("Equal", 1, 2),
    Sketcher.Constraint("Equal", 2, 3),
    Sketcher.Constraint("Horizontal", 0, 3, 1, 3),
    Sketcher.Constraint("Horizontal", 2, 3, 3, 3),
    Sketcher.Constraint("Vertical", 1, 3, 2, 3),
    Sketcher.Constraint("Vertical", 0, 3, 3, 3),
    Sketcher.Constraint("Vertical", 7, 2, 8, 2),
    Sketcher.Constraint("Vertical", 6, 2, 9, 2),
    Sketcher.Constraint("Equal", 6, 8),
    Sketcher.Constraint("Diameter", 0, Q("0.15 in")),
    Sketcher.Constraint("DistanceY", 4, 2, 4, 1, Q("0.3 in")),
    Sketcher.Constraint("DistanceX", 5, 1, 5, 2, Q("0.25 in")),
    Sketcher.Constraint("DistanceX", -1, 1, 1, 3, Q("8.5 in")),
    Sketcher.Constraint("DistanceY", -1, 1, 2, 3, Q("0.1875 in")),
    Sketcher.Constraint("DistanceY", -1, 1, 4, 2, Q("3.541 in")),
    Sketcher.Constraint("DistanceY", -1, 1, 8, 2, Q("0.136 in")),
    Sketcher.Constraint("DistanceY", 2, 3, 1, 3, Q("3.602 in")),
    Sketcher.Constraint("DistanceX", 4, 2, 0, 3, Q("0.625 in")),
    Sketcher.Constraint("DistanceX", -1, 1, 0, 3, Q("146.4 mm")),
])
sketch6.setExpression("Constraints[26]", "Params.sketch6_diameter")
sketch6.setExpression("Constraints[27]", "Params.sketch6_height")
sketch6.setExpression("Constraints[28]", "Params.sketch6_width")
pocket5 = doc.addObject("PartDesign::Pocket", "Pocket004")
body.addObject(pocket5)
pocket5.Profile = sketch6
pocket5.Type = "ThroughAll"

sketch7 = doc.addObject("Sketcher::SketchObject", "Sketch006")
body.addObject(sketch7)
sketch7.AttachmentSupport = (doc.XY_Plane, [""])
sketch7.MapMode = "FlatFace"
sketch7.AttachmentOffset = App.Placement(Vector(0, 0, 6), App.Rotation())
sketch7.addGeometry([
    Part.Circle(Vector(16.6, 94.2, 0), Vector(0, 0, 1), 1.8),
    Part.Circle(Vector(105.5, 94.2, 0), Vector(0, 0, 1), 1.8),
    Part.Circle(Vector(105.5, 6.1, 0), Vector(0, 0, 1), 1.8),
    Part.Circle(Vector(16.6, 6.1, 0), Vector(0, 0, 1), 1.8),
], False)
sketch7.addConstraint([
    Sketcher.Constraint("Equal", 0, 1),
    Sketcher.Constraint("Equal", 1, 2),
    Sketcher.Constraint("Equal", 2, 3),
    Sketcher.Constraint("Horizontal", 0, 3, 1, 3),
    Sketcher.Constraint("Horizontal", 2, 3, 3, 3),
    Sketcher.Constraint("Vertical", 1, 3, 2, 3),
    Sketcher.Constraint("Vertical", 0, 3, 3, 3),
    Sketcher.Constraint("Diameter", 0, Q("0.142 in")),
    Sketcher.Constraint("DistanceX", 0, 3, 1, 3, Q("3.5 in")),
    Sketcher.Constraint("DistanceX", -1, 1, 0, 3, Q("16.5679 mm")),
    Sketcher.Constraint("DistanceY", -1, 1, 0, 3, Q("94.2114 mm")),
    Sketcher.Constraint("DistanceY", -1, 1, 2, 3, Q("6.1044 mm")),
])
sketch7.setExpression("Constraints[7]", "Params.sketch7_diameter")
pocket6 = doc.addObject("PartDesign::Pocket", "Pocket005")
body.addObject(pocket6)
pocket6.Profile = sketch7
pocket6.Type = "ThroughAll"

sketch8 = doc.addObject("Sketcher::SketchObject", "Sketch007")
body.addObject(sketch8)
sketch8.AttachmentSupport = (doc.XY_Plane, [""])
sketch8.MapMode = "FlatFace"
sketch8.AttachmentOffset = App.Placement(Vector(0, 0, 6), App.Rotation())
sketch8.addGeometry(Part.Circle(Vector(279.4, 101, 0), Vector(0, 0, 1), 1.6), False)
sketch8.addConstraint([
    Sketcher.Constraint("Diameter", 0, Q("0.125 in")),
    Sketcher.Constraint("DistanceX", -1, 1, 0, 3, Q("11 in")),
    Sketcher.Constraint("DistanceY", -1, 1, 0, 3, Q("3.977 in")),
])
sketch8.setExpression("Constraints[0]", "Params.sketch8_diameter")
pocket7 = doc.addObject("PartDesign::Pocket", "Pocket006")
body.addObject(pocket7)
pocket7.Profile = sketch8
pocket7.Type = "ThroughAll"

doc.recompute()
